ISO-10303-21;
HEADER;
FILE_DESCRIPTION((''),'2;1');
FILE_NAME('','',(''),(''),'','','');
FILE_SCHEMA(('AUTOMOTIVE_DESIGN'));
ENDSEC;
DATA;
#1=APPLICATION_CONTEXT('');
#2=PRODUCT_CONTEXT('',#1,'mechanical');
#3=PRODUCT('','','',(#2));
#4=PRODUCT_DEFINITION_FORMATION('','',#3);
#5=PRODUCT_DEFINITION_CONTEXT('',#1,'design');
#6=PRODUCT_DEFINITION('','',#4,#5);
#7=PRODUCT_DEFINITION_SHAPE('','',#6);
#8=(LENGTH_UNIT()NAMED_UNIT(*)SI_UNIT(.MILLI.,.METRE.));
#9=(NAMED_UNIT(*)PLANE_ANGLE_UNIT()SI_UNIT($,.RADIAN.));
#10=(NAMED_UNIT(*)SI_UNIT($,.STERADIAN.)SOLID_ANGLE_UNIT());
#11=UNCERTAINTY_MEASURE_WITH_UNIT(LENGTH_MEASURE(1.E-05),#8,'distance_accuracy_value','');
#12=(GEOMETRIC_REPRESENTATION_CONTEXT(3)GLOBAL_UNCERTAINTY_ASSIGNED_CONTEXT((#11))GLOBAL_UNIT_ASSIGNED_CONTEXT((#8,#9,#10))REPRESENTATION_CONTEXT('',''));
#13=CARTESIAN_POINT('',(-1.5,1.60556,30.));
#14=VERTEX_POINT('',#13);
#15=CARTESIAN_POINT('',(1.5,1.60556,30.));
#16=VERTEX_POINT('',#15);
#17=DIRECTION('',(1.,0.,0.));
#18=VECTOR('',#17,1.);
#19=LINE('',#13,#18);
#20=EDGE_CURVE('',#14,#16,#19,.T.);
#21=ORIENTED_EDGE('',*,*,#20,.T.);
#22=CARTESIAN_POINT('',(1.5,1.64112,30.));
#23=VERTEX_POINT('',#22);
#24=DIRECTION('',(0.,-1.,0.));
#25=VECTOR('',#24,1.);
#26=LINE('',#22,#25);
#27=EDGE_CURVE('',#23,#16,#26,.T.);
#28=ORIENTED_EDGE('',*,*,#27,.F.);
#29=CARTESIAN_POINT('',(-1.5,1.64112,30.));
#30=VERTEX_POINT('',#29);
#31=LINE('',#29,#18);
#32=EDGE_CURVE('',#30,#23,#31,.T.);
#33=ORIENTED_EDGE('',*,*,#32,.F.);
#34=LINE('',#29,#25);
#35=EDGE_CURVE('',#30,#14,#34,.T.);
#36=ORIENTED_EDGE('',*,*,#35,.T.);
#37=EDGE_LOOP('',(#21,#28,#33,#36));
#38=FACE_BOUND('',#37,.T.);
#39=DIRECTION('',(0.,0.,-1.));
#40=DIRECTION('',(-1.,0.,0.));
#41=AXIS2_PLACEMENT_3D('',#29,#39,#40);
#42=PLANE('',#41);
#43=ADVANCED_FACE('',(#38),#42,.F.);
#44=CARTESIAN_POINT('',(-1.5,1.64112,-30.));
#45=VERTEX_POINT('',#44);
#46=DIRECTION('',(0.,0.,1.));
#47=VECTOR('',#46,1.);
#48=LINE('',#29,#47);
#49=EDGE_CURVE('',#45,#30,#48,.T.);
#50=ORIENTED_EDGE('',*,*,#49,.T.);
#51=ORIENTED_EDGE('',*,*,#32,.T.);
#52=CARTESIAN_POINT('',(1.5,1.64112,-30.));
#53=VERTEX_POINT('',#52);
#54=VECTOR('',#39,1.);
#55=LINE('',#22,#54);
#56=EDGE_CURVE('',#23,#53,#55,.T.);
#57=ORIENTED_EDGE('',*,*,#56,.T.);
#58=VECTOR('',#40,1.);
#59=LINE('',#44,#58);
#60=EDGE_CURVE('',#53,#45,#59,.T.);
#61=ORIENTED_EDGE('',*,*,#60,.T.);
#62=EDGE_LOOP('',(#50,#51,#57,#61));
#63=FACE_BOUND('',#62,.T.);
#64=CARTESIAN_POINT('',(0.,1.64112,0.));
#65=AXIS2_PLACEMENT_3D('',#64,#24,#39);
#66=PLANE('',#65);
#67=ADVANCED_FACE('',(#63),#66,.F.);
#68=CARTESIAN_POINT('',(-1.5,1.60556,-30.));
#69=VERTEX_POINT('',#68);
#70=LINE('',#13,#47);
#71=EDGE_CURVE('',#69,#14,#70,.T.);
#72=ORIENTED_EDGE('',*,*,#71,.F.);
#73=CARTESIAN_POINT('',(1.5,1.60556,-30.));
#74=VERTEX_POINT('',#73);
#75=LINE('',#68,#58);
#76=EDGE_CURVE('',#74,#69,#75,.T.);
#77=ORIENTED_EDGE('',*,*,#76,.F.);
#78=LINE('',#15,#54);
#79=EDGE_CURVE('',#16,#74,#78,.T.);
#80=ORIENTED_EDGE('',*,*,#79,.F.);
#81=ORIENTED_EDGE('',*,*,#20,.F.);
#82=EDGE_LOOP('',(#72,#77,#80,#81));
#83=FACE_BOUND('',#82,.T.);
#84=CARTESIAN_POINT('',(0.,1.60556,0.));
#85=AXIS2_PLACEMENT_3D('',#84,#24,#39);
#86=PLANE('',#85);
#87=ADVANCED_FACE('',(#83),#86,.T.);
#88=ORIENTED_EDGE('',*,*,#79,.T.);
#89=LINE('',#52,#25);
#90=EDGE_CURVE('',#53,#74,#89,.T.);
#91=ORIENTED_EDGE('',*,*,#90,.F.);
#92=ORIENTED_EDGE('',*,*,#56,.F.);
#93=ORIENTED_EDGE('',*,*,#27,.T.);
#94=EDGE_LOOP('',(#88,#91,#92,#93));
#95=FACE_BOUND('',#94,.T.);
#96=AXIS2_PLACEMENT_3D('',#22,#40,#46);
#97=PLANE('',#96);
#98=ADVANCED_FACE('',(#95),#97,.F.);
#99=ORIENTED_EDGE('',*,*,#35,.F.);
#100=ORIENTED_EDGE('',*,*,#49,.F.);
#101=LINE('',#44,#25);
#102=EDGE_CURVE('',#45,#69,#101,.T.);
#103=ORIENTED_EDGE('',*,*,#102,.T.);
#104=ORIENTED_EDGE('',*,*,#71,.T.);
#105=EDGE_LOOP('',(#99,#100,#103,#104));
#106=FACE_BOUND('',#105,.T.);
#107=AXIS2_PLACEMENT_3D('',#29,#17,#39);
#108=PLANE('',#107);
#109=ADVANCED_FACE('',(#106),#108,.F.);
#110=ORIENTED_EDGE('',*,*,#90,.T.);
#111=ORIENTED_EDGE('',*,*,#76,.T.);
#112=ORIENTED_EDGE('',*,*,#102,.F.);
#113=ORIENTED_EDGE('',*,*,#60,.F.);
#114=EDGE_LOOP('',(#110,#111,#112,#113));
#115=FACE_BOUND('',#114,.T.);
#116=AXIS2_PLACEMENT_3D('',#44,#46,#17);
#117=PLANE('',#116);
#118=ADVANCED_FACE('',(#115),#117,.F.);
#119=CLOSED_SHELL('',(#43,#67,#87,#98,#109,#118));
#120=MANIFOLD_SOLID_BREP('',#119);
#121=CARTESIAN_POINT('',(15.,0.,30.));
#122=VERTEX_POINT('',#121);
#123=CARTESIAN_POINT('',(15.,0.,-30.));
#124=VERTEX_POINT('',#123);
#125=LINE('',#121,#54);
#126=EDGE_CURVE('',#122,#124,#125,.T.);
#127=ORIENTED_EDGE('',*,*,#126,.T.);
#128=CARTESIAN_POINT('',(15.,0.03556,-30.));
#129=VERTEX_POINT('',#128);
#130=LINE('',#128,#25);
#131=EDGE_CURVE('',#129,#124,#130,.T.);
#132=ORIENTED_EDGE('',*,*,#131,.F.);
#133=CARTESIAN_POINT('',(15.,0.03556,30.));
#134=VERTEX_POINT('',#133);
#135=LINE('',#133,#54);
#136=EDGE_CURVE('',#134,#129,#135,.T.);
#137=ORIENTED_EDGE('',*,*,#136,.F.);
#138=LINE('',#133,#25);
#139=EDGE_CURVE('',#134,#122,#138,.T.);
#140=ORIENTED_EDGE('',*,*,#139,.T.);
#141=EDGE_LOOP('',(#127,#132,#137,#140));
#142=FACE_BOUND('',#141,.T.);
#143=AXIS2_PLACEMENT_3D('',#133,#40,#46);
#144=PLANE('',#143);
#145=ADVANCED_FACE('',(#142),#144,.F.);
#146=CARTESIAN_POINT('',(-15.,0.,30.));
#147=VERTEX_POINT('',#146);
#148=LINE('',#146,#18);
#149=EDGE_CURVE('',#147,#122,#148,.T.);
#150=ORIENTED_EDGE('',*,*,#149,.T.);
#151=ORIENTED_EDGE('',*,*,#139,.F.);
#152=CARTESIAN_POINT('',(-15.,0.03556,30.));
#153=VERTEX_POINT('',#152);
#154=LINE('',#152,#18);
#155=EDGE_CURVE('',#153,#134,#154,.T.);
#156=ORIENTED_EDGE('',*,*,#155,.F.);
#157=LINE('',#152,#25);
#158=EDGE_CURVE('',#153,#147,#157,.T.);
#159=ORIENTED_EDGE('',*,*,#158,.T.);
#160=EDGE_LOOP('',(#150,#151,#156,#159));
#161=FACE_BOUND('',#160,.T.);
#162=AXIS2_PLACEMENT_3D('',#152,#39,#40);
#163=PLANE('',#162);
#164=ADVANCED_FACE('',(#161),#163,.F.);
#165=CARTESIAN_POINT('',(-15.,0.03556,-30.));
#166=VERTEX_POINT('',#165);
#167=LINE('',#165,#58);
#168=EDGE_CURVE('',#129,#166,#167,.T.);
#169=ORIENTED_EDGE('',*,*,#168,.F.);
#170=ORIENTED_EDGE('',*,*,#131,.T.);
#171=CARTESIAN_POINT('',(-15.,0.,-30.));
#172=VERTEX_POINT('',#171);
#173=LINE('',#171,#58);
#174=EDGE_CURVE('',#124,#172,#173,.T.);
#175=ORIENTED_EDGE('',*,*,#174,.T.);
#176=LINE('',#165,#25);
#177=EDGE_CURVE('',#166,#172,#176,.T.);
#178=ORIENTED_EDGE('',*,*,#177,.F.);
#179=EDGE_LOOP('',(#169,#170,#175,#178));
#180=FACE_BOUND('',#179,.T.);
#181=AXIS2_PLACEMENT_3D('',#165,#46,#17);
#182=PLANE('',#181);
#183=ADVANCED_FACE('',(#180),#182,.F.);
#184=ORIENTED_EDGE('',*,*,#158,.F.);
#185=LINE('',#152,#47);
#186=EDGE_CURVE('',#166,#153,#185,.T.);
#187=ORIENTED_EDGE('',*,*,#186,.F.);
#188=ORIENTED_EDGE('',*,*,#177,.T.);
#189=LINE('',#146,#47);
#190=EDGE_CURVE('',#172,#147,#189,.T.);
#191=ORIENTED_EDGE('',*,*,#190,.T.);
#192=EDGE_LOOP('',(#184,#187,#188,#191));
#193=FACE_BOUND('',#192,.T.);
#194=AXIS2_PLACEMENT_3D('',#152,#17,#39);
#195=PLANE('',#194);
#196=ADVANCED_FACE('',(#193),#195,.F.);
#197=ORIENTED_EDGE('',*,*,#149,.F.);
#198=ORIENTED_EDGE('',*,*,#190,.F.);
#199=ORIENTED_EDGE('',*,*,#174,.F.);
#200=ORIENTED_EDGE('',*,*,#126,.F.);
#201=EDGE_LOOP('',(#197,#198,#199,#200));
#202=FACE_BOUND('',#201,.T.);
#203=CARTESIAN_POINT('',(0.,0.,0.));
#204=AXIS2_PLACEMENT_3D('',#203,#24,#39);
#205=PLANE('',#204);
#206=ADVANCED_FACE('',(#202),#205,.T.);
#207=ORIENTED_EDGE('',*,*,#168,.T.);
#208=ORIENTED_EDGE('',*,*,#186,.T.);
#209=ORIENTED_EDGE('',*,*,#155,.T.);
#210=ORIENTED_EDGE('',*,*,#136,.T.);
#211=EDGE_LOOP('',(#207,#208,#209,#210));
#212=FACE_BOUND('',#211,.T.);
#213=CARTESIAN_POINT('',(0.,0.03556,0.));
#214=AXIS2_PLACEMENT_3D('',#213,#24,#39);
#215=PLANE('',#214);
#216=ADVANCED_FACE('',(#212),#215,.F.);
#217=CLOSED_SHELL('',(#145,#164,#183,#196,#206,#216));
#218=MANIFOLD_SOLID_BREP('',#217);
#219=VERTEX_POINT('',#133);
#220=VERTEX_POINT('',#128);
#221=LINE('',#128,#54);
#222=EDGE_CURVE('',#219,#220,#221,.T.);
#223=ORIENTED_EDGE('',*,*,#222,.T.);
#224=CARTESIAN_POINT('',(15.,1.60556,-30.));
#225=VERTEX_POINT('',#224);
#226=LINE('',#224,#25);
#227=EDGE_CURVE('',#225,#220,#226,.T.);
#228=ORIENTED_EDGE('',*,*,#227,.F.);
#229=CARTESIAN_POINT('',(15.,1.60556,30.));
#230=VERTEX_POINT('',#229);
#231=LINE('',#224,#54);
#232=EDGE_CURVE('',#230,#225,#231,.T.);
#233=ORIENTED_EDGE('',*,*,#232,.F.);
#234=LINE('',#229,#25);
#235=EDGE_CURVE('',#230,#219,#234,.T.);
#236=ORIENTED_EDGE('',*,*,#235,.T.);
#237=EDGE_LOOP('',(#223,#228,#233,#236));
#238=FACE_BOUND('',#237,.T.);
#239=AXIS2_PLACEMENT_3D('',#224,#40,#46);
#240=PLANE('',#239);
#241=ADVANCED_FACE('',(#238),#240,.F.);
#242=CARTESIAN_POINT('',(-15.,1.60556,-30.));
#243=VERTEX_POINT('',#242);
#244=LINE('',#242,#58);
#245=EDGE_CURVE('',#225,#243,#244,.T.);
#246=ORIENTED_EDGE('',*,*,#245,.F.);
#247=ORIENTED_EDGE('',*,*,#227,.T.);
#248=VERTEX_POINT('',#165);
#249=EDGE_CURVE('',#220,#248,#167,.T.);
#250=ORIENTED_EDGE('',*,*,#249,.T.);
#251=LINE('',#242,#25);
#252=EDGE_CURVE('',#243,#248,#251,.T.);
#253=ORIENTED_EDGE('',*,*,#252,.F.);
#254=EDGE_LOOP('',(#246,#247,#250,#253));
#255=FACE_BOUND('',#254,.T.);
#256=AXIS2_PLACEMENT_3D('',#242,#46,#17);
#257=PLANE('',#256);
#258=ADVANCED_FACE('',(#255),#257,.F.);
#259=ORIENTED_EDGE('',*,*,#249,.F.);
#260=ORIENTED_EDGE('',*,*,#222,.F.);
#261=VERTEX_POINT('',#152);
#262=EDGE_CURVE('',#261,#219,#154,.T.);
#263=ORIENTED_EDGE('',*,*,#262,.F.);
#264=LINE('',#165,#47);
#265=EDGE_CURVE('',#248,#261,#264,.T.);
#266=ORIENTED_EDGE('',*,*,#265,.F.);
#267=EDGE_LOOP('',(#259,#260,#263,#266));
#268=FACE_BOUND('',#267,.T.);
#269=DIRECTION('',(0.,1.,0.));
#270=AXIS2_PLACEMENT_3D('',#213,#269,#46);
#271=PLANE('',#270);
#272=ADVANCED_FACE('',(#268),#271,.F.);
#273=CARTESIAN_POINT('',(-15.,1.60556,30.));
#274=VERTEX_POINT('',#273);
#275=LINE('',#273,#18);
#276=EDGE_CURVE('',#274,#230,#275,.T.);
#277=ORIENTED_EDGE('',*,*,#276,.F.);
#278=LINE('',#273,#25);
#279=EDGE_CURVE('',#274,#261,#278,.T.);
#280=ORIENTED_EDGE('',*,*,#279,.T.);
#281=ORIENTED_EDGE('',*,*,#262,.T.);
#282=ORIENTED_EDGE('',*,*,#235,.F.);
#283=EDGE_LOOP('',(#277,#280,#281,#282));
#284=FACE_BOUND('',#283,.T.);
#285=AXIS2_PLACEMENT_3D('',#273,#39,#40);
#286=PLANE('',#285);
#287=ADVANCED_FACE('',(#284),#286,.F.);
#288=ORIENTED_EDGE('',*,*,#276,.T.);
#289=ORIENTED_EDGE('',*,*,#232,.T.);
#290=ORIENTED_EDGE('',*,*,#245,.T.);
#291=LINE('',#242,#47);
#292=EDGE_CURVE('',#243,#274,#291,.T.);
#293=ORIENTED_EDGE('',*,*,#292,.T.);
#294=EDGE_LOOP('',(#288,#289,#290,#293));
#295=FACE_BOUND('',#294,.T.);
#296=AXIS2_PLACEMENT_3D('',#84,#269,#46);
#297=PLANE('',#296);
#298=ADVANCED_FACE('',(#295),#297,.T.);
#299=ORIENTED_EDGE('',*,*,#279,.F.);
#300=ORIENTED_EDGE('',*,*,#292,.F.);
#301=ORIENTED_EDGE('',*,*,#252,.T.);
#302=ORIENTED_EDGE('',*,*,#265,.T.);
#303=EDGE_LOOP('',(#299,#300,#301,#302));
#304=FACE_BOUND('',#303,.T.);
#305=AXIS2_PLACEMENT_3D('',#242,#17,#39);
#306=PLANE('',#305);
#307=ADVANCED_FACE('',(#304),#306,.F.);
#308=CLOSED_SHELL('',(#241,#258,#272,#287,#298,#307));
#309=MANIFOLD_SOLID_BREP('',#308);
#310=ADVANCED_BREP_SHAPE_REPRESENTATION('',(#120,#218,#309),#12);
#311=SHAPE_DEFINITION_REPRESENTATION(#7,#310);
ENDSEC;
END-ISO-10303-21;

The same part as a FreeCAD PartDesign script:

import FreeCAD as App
import Part
import Sketcher
from FreeCAD import Vector

doc = App.newDocument("Part")
body = doc.addObject("PartDesign::Body", "Body")

# Sketch on XZ plane
sketch1 = body.newObject("Sketcher::SketchObject", "Sketch")
sketch1.AttachmentSupport = (doc.getObject("XZ_Plane"), [""])
sketch1.MapMode = "FlatFace"
sketch1.addGeometry([
    Part.LineSegment(Vector(-15, -30, 0), Vector(-15, 30, 0)),
    Part.LineSegment(Vector(-15, 30, 0), Vector(15, 30, 0)),
    Part.LineSegment(Vector(15, 30, 0), Vector(15, -30, 0)),
    Part.LineSegment(Vector(15, -30, 0), Vector(-15, -30, 0)),
], False)
sketch1.addConstraint([
    Sketcher.Constraint("Coincident", 0, 2, 1, 1),
    Sketcher.Constraint("Coincident", 1, 2, 2, 1),
    Sketcher.Constraint("Coincident", 2, 2, 3, 1),
    Sketcher.Constraint("Coincident", 3, 2, 0, 1),
    Sketcher.Constraint("Vertical", 0),
    Sketcher.Constraint("Horizontal", 1),
    Sketcher.Constraint("Vertical", 2),
    Sketcher.Constraint("Horizontal", 3),
    Sketcher.Constraint("Symmetric", 0, 2, 2, 2, -1, 1),
    Sketcher.Constraint("DistanceX", 1, 1, 1, 2, 30.0),
    Sketcher.Constraint("DistanceY", 0, 1, 0, 2, 60.0),
])
pad1 = body.newObject("PartDesign::Pad", "Pad")
pad1.Profile = sketch1
pad1.Length = 0.03556
pad1.Reversed = True
body2 = doc.addObject("PartDesign::Body", "Body001")

# Sketch on XZ plane
sketch2 = body2.newObject("Sketcher::SketchObject", "Sketch001")
sketch2.AttachmentSupport = (doc.getObject("XZ_Plane001"), [""])
sketch2.MapMode = "FlatFace"
sketch2.AttachmentOffset = App.Placement(Vector(0, 0, -0.03556), App.Rotation())
sketch2.addGeometry([
    Part.LineSegment(Vector(-15, -30, 0), Vector(-15, 30, 0)),
    Part.LineSegment(Vector(-15, 30, 0), Vector(15, 30, 0)),
    Part.LineSegment(Vector(15, 30, 0), Vector(15, -30, 0)),
    Part.LineSegment(Vector(15, -30, 0), Vector(-15, -30, 0)),
], False)
sketch2.addConstraint([
    Sketcher.Constraint("Coincident", 0, 2, 1, 1),
    Sketcher.Constraint("Coincident", 1, 2, 2, 1),
    Sketcher.Constraint("Coincident", 2, 2, 3, 1),
    Sketcher.Constraint("Coincident", 3, 2, 0, 1),
    Sketcher.Constraint("Vertical", 0),
    Sketcher.Constraint("Horizontal", 1),
    Sketcher.Constraint("Vertical", 2),
    Sketcher.Constraint("Horizontal", 3),
    Sketcher.Constraint("Symmetric", 0, 2, 2, 2, -1, 1),
    Sketcher.Constraint("DistanceX", 1, 1, 1, 2, 30.0),
    Sketcher.Constraint("DistanceY", 0, 1, 0, 2, 60.0),
])
pad2 = body2.newObject("PartDesign::Pad", "Pad001")
pad2.Profile = sketch2
pad2.Length = 1.57
pad2.Reversed = True
body3 = doc.addObject("PartDesign::Body", "Body002")

# Sketch on XZ plane
sketch3 = body3.newObject("Sketcher::SketchObject", "Sketch002")
sketch3.AttachmentSupport = (doc.getObject("XZ_Plane002"), [""])
sketch3.MapMode = "FlatFace"
sketch3.AttachmentOffset = App.Placement(Vector(0, 0, -1.60556), App.Rotation())
sketch3.addGeometry([
    Part.LineSegment(Vector(-1.5, -30, 0), Vector(-1.5, 30, 0)),
    Part.LineSegment(Vector(-1.5, 30, 0), Vector(1.5, 30, 0)),
    Part.LineSegment(Vector(1.5, 30, 0), Vector(1.5, -30, 0)),
    Part.LineSegment(Vector(1.5, -30, 0), Vector(-1.5, -30, 0)),
], False)
sketch3.addConstraint([
    Sketcher.Constraint("Coincident", 0, 2, 1, 1),
    Sketcher.Constraint("Coincident", 1, 2, 2, 1),
    Sketcher.Constraint("Coincident", 2, 2, 3, 1),
    Sketcher.Constraint("Coincident", 3, 2, 0, 1),
    Sketcher.Constraint("Vertical", 0),
    Sketcher.Constraint("Horizontal", 1),
    Sketcher.Constraint("Vertical", 2),
    Sketcher.Constraint("Horizontal", 3),
    Sketcher.Constraint("Symmetric", 0, 2, 2, 2, -1, 1),
    Sketcher.Constraint("DistanceX", 1, 1, 1, 2, 3.0),
    Sketcher.Constraint("DistanceY", 0, 1, 0, 2, 60.0),
])
pad3 = body3.newObject("PartDesign::Pad", "Pad002")
pad3.Profile = sketch3
pad3.Length = 0.03556
pad3.Reversed = True

doc.recompute()
